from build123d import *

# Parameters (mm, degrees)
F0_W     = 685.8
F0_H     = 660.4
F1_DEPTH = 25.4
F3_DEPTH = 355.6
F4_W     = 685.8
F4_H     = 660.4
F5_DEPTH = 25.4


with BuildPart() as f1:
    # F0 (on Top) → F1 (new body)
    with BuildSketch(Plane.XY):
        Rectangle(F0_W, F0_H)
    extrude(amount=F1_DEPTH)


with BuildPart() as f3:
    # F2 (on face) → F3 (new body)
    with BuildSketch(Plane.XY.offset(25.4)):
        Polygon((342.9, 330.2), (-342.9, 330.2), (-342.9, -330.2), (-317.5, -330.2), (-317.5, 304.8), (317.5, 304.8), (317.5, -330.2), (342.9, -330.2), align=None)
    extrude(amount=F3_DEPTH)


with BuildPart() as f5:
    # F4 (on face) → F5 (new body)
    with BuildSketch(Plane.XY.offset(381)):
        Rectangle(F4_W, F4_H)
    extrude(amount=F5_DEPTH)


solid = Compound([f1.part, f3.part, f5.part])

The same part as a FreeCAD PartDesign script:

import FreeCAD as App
import Part
import Sketcher
from FreeCAD import Vector
Q = App.Units.Quantity

doc = App.newDocument("Part")
params = doc.addObject("Spreadsheet::Sheet", "Params")
for row, (alias, value) in enumerate([
    ("sketch1_width", "27 in"),
    ("sketch1_height", "26 in"),
    ("pad1_length", "1 in"),
    ("sketch2_width", "27 in"),
    ("sketch2_width2", "1 in"),
    ("sketch2_height", "26 in"),
    ("pad2_length", "14 in"),
    ("sketch3_width", "27 in"),
    ("sketch3_height", "26 in"),
    ("pad3_length", "1 in"),
], start=1):
    params.set(f"A{row}", alias)
    params.set(f"B{row}", "=" + value)
    params.setAlias(f"B{row}", alias)

body = doc.addObject("PartDesign::Body", "Body")

# Sketch on XY plane
sketch1 = doc.addObject("Sketcher::SketchObject", "Sketch")
body.addObject(sketch1)
sketch1.AttachmentSupport = (doc.XY_Plane, [""])
sketch1.MapMode = "FlatFace"
sketch1.addGeometry([
    Part.LineSegment(Vector(-342.9, 330.2, 0), Vector(-342.9, -330.2, 0)),
    Part.LineSegment(Vector(-342.9, -330.2, 0), Vector(342.9, -330.2, 0)),
    Part.LineSegment(Vector(342.9, -330.2, 0), Vector(342.9, 330.2, 0)),
    Part.LineSegment(Vector(342.9, 330.2, 0), Vector(-342.9, 330.2, 0)),
], False)
sketch1.addConstraint([
    Sketcher.Constraint("Coincident", 0, 2, 1, 1),
    Sketcher.Constraint("Coincident", 1, 2, 2, 1),
    Sketcher.Constraint("Coincident", 2, 2, 3, 1),
    Sketcher.Constraint("Coincident", 3, 2, 0, 1),
    Sketcher.Constraint("Vertical", 0),
    Sketcher.Constraint("Horizontal", 1),
    Sketcher.Constraint("Vertical", 2),
    Sketcher.Constraint("Horizontal", 3),
    Sketcher.Constraint("Symmetric", 0, 2, 2, 2, -1, 1),
    Sketcher.Constraint("DistanceX", 1, 1, 1, 2, Q("27 in")),
    Sketcher.Constraint("DistanceY", 0, 2, 0, 1, Q("26 in")),
])
sketch1.setExpression("Constraints[9]", "Params.sketch1_width")
sketch1.setExpression("Constraints[10]", "Params.sketch1_height")
pad1 = doc.addObject("PartDesign::Pad", "Pad")
body.addObject(pad1)
pad1.Profile = sketch1
pad1.setExpression("Length", "Params.pad1_length")
body2 = doc.addObject("PartDesign::Body", "Body001")

# Sketch on XY plane
sketch2 = doc.addObject("Sketcher::SketchObject", "Sketch001")
body2.addObject(sketch2)
sketch2.AttachmentSupport = (doc.getObject("XY_Plane001"), [""])
sketch2.MapMode = "FlatFace"
sketch2.AttachmentOffset = App.Placement(Vector(0, 0, 1 * 25.4), App.Rotation())
sketch2.addGeometry([
    Part.LineSegment(Vector(342.9, 330.2, 0), Vector(-342.9, 330.2, 0)),  # 0
    Part.LineSegment(Vector(-342.9, 330.2, 0), Vector(-342.9, -330.2, 0)),  # 1
    Part.LineSegment(Vector(-342.9, -330.2, 0), Vector(-317.5, -330.2, 0)),  # 2
    Part.LineSegment(Vector(-317.5, -330.2, 0), Vector(-317.5, 304.8, 0)),  # 3
    Part.LineSegment(Vector(-317.5, 304.8, 0), Vector(317.5, 304.8, 0)),  # 4
    Part.LineSegment(Vector(317.5, 304.8, 0), Vector(317.5, -330.2, 0)),  # 5
    Part.LineSegment(Vector(317.5, -330.2, 0), Vector(342.9, -330.2, 0)),  # 6
    Part.LineSegment(Vector(342.9, -330.2, 0), Vector(342.9, 330.2, 0)),  # 7
], False)
sketch2.addConstraint([
    Sketcher.Constraint("Coincident", 0, 2, 1, 1),
    Sketcher.Constraint("Coincident", 1, 2, 2, 1),
    Sketcher.Constraint("Coincident", 2, 2, 3, 1),
    Sketcher.Constraint("Coincident", 3, 2, 4, 1),
    Sketcher.Constraint("Coincident", 4, 2, 5, 1),
    Sketcher.Constraint("Coincident", 5, 2, 6, 1),
    Sketcher.Constraint("Coincident", 6, 2, 7, 1),
    Sketcher.Constraint("Coincident", 7, 2, 0, 1),
    Sketcher.Constraint("Horizontal", 0),
    Sketcher.Constraint("Vertical", 1),
    Sketcher.Constraint("Horizontal", 2),
    Sketcher.Constraint("Vertical", 3),
    Sketcher.Constraint("Horizontal", 4),
    Sketcher.Constraint("Vertical", 5),
    Sketcher.Constraint("Horizontal", 6),
    Sketcher.Constraint("Vertical", 7),
    Sketcher.Constraint("Symmetric", 0, 2, 6, 2, -1, 1),
    Sketcher.Constraint("Symmetric", 2, 2, 5, 2, -2),
    Sketcher.Constraint("Equal", 4, 3),
    Sketcher.Constraint("DistanceX", 0, 2, 0, 1, Q("27 in")),
    Sketcher.Constraint("DistanceX", 2, 1, 2, 2, Q("1 in")),
    Sketcher.Constraint("DistanceY", 1, 2, 1, 1, Q("26 in")),
])
sketch2.setExpression("Constraints[19]", "Params.sketch2_width")
sketch2.setExpression("Constraints[20]", "Params.sketch2_width2")
sketch2.setExpression("Constraints[21]", "Params.sketch2_height")
pad2 = doc.addObject("PartDesign::Pad", "Pad001")
body2.addObject(pad2)
pad2.Profile = sketch2
pad2.setExpression("Length", "Params.pad2_length")
body3 = doc.addObject("PartDesign::Body", "Body002")

# Sketch on XY plane
sketch3 = doc.addObject("Sketcher::SketchObject", "Sketch002")
body3.addObject(sketch3)
sketch3.AttachmentSupport = (doc.getObject("XY_Plane002"), [""])
sketch3.MapMode = "FlatFace"
sketch3.AttachmentOffset = App.Placement(Vector(0, 0, 15 * 25.4), App.Rotation())
sketch3.addGeometry([
    Part.LineSegment(Vector(-342.9, 330.2, 0), Vector(-342.9, -330.2, 0)),
    Part.LineSegment(Vector(-342.9, -330.2, 0), Vector(342.9, -330.2, 0)),
    Part.LineSegment(Vector(342.9, -330.2, 0), Vector(342.9, 330.2, 0)),
    Part.LineSegment(Vector(342.9, 330.2, 0), Vector(-342.9, 330.2, 0)),
], False)
sketch3.addConstraint([
    Sketcher.Constraint("Coincident", 0, 2, 1, 1),
    Sketcher.Constraint("Coincident", 1, 2, 2, 1),
    Sketcher.Constraint("Coincident", 2, 2, 3, 1),
    Sketcher.Constraint("Coincident", 3, 2, 0, 1),
    Sketcher.Constraint("Vertical", 0),
    Sketcher.Constraint("Horizontal", 1),
    Sketcher.Constraint("Vertical", 2),
    Sketcher.Constraint("Horizontal", 3),
    Sketcher.Constraint("Symmetric", 0, 2, 2, 2, -1, 1),
    Sketcher.Constraint("DistanceX", 1, 1, 1, 2, Q("27 in")),
    Sketcher.Constraint("DistanceY", 0, 2, 0, 1, Q("26 in")),
])
sketch3.setExpression("Constraints[9]", "Params.sketch3_width")
sketch3.setExpression("Constraints[10]", "Params.sketch3_height")
pad3 = doc.addObject("PartDesign::Pad", "Pad002")
body3.addObject(pad3)
pad3.Profile = sketch3
pad3.setExpression("Length", "Params.pad3_length")

doc.recompute()
